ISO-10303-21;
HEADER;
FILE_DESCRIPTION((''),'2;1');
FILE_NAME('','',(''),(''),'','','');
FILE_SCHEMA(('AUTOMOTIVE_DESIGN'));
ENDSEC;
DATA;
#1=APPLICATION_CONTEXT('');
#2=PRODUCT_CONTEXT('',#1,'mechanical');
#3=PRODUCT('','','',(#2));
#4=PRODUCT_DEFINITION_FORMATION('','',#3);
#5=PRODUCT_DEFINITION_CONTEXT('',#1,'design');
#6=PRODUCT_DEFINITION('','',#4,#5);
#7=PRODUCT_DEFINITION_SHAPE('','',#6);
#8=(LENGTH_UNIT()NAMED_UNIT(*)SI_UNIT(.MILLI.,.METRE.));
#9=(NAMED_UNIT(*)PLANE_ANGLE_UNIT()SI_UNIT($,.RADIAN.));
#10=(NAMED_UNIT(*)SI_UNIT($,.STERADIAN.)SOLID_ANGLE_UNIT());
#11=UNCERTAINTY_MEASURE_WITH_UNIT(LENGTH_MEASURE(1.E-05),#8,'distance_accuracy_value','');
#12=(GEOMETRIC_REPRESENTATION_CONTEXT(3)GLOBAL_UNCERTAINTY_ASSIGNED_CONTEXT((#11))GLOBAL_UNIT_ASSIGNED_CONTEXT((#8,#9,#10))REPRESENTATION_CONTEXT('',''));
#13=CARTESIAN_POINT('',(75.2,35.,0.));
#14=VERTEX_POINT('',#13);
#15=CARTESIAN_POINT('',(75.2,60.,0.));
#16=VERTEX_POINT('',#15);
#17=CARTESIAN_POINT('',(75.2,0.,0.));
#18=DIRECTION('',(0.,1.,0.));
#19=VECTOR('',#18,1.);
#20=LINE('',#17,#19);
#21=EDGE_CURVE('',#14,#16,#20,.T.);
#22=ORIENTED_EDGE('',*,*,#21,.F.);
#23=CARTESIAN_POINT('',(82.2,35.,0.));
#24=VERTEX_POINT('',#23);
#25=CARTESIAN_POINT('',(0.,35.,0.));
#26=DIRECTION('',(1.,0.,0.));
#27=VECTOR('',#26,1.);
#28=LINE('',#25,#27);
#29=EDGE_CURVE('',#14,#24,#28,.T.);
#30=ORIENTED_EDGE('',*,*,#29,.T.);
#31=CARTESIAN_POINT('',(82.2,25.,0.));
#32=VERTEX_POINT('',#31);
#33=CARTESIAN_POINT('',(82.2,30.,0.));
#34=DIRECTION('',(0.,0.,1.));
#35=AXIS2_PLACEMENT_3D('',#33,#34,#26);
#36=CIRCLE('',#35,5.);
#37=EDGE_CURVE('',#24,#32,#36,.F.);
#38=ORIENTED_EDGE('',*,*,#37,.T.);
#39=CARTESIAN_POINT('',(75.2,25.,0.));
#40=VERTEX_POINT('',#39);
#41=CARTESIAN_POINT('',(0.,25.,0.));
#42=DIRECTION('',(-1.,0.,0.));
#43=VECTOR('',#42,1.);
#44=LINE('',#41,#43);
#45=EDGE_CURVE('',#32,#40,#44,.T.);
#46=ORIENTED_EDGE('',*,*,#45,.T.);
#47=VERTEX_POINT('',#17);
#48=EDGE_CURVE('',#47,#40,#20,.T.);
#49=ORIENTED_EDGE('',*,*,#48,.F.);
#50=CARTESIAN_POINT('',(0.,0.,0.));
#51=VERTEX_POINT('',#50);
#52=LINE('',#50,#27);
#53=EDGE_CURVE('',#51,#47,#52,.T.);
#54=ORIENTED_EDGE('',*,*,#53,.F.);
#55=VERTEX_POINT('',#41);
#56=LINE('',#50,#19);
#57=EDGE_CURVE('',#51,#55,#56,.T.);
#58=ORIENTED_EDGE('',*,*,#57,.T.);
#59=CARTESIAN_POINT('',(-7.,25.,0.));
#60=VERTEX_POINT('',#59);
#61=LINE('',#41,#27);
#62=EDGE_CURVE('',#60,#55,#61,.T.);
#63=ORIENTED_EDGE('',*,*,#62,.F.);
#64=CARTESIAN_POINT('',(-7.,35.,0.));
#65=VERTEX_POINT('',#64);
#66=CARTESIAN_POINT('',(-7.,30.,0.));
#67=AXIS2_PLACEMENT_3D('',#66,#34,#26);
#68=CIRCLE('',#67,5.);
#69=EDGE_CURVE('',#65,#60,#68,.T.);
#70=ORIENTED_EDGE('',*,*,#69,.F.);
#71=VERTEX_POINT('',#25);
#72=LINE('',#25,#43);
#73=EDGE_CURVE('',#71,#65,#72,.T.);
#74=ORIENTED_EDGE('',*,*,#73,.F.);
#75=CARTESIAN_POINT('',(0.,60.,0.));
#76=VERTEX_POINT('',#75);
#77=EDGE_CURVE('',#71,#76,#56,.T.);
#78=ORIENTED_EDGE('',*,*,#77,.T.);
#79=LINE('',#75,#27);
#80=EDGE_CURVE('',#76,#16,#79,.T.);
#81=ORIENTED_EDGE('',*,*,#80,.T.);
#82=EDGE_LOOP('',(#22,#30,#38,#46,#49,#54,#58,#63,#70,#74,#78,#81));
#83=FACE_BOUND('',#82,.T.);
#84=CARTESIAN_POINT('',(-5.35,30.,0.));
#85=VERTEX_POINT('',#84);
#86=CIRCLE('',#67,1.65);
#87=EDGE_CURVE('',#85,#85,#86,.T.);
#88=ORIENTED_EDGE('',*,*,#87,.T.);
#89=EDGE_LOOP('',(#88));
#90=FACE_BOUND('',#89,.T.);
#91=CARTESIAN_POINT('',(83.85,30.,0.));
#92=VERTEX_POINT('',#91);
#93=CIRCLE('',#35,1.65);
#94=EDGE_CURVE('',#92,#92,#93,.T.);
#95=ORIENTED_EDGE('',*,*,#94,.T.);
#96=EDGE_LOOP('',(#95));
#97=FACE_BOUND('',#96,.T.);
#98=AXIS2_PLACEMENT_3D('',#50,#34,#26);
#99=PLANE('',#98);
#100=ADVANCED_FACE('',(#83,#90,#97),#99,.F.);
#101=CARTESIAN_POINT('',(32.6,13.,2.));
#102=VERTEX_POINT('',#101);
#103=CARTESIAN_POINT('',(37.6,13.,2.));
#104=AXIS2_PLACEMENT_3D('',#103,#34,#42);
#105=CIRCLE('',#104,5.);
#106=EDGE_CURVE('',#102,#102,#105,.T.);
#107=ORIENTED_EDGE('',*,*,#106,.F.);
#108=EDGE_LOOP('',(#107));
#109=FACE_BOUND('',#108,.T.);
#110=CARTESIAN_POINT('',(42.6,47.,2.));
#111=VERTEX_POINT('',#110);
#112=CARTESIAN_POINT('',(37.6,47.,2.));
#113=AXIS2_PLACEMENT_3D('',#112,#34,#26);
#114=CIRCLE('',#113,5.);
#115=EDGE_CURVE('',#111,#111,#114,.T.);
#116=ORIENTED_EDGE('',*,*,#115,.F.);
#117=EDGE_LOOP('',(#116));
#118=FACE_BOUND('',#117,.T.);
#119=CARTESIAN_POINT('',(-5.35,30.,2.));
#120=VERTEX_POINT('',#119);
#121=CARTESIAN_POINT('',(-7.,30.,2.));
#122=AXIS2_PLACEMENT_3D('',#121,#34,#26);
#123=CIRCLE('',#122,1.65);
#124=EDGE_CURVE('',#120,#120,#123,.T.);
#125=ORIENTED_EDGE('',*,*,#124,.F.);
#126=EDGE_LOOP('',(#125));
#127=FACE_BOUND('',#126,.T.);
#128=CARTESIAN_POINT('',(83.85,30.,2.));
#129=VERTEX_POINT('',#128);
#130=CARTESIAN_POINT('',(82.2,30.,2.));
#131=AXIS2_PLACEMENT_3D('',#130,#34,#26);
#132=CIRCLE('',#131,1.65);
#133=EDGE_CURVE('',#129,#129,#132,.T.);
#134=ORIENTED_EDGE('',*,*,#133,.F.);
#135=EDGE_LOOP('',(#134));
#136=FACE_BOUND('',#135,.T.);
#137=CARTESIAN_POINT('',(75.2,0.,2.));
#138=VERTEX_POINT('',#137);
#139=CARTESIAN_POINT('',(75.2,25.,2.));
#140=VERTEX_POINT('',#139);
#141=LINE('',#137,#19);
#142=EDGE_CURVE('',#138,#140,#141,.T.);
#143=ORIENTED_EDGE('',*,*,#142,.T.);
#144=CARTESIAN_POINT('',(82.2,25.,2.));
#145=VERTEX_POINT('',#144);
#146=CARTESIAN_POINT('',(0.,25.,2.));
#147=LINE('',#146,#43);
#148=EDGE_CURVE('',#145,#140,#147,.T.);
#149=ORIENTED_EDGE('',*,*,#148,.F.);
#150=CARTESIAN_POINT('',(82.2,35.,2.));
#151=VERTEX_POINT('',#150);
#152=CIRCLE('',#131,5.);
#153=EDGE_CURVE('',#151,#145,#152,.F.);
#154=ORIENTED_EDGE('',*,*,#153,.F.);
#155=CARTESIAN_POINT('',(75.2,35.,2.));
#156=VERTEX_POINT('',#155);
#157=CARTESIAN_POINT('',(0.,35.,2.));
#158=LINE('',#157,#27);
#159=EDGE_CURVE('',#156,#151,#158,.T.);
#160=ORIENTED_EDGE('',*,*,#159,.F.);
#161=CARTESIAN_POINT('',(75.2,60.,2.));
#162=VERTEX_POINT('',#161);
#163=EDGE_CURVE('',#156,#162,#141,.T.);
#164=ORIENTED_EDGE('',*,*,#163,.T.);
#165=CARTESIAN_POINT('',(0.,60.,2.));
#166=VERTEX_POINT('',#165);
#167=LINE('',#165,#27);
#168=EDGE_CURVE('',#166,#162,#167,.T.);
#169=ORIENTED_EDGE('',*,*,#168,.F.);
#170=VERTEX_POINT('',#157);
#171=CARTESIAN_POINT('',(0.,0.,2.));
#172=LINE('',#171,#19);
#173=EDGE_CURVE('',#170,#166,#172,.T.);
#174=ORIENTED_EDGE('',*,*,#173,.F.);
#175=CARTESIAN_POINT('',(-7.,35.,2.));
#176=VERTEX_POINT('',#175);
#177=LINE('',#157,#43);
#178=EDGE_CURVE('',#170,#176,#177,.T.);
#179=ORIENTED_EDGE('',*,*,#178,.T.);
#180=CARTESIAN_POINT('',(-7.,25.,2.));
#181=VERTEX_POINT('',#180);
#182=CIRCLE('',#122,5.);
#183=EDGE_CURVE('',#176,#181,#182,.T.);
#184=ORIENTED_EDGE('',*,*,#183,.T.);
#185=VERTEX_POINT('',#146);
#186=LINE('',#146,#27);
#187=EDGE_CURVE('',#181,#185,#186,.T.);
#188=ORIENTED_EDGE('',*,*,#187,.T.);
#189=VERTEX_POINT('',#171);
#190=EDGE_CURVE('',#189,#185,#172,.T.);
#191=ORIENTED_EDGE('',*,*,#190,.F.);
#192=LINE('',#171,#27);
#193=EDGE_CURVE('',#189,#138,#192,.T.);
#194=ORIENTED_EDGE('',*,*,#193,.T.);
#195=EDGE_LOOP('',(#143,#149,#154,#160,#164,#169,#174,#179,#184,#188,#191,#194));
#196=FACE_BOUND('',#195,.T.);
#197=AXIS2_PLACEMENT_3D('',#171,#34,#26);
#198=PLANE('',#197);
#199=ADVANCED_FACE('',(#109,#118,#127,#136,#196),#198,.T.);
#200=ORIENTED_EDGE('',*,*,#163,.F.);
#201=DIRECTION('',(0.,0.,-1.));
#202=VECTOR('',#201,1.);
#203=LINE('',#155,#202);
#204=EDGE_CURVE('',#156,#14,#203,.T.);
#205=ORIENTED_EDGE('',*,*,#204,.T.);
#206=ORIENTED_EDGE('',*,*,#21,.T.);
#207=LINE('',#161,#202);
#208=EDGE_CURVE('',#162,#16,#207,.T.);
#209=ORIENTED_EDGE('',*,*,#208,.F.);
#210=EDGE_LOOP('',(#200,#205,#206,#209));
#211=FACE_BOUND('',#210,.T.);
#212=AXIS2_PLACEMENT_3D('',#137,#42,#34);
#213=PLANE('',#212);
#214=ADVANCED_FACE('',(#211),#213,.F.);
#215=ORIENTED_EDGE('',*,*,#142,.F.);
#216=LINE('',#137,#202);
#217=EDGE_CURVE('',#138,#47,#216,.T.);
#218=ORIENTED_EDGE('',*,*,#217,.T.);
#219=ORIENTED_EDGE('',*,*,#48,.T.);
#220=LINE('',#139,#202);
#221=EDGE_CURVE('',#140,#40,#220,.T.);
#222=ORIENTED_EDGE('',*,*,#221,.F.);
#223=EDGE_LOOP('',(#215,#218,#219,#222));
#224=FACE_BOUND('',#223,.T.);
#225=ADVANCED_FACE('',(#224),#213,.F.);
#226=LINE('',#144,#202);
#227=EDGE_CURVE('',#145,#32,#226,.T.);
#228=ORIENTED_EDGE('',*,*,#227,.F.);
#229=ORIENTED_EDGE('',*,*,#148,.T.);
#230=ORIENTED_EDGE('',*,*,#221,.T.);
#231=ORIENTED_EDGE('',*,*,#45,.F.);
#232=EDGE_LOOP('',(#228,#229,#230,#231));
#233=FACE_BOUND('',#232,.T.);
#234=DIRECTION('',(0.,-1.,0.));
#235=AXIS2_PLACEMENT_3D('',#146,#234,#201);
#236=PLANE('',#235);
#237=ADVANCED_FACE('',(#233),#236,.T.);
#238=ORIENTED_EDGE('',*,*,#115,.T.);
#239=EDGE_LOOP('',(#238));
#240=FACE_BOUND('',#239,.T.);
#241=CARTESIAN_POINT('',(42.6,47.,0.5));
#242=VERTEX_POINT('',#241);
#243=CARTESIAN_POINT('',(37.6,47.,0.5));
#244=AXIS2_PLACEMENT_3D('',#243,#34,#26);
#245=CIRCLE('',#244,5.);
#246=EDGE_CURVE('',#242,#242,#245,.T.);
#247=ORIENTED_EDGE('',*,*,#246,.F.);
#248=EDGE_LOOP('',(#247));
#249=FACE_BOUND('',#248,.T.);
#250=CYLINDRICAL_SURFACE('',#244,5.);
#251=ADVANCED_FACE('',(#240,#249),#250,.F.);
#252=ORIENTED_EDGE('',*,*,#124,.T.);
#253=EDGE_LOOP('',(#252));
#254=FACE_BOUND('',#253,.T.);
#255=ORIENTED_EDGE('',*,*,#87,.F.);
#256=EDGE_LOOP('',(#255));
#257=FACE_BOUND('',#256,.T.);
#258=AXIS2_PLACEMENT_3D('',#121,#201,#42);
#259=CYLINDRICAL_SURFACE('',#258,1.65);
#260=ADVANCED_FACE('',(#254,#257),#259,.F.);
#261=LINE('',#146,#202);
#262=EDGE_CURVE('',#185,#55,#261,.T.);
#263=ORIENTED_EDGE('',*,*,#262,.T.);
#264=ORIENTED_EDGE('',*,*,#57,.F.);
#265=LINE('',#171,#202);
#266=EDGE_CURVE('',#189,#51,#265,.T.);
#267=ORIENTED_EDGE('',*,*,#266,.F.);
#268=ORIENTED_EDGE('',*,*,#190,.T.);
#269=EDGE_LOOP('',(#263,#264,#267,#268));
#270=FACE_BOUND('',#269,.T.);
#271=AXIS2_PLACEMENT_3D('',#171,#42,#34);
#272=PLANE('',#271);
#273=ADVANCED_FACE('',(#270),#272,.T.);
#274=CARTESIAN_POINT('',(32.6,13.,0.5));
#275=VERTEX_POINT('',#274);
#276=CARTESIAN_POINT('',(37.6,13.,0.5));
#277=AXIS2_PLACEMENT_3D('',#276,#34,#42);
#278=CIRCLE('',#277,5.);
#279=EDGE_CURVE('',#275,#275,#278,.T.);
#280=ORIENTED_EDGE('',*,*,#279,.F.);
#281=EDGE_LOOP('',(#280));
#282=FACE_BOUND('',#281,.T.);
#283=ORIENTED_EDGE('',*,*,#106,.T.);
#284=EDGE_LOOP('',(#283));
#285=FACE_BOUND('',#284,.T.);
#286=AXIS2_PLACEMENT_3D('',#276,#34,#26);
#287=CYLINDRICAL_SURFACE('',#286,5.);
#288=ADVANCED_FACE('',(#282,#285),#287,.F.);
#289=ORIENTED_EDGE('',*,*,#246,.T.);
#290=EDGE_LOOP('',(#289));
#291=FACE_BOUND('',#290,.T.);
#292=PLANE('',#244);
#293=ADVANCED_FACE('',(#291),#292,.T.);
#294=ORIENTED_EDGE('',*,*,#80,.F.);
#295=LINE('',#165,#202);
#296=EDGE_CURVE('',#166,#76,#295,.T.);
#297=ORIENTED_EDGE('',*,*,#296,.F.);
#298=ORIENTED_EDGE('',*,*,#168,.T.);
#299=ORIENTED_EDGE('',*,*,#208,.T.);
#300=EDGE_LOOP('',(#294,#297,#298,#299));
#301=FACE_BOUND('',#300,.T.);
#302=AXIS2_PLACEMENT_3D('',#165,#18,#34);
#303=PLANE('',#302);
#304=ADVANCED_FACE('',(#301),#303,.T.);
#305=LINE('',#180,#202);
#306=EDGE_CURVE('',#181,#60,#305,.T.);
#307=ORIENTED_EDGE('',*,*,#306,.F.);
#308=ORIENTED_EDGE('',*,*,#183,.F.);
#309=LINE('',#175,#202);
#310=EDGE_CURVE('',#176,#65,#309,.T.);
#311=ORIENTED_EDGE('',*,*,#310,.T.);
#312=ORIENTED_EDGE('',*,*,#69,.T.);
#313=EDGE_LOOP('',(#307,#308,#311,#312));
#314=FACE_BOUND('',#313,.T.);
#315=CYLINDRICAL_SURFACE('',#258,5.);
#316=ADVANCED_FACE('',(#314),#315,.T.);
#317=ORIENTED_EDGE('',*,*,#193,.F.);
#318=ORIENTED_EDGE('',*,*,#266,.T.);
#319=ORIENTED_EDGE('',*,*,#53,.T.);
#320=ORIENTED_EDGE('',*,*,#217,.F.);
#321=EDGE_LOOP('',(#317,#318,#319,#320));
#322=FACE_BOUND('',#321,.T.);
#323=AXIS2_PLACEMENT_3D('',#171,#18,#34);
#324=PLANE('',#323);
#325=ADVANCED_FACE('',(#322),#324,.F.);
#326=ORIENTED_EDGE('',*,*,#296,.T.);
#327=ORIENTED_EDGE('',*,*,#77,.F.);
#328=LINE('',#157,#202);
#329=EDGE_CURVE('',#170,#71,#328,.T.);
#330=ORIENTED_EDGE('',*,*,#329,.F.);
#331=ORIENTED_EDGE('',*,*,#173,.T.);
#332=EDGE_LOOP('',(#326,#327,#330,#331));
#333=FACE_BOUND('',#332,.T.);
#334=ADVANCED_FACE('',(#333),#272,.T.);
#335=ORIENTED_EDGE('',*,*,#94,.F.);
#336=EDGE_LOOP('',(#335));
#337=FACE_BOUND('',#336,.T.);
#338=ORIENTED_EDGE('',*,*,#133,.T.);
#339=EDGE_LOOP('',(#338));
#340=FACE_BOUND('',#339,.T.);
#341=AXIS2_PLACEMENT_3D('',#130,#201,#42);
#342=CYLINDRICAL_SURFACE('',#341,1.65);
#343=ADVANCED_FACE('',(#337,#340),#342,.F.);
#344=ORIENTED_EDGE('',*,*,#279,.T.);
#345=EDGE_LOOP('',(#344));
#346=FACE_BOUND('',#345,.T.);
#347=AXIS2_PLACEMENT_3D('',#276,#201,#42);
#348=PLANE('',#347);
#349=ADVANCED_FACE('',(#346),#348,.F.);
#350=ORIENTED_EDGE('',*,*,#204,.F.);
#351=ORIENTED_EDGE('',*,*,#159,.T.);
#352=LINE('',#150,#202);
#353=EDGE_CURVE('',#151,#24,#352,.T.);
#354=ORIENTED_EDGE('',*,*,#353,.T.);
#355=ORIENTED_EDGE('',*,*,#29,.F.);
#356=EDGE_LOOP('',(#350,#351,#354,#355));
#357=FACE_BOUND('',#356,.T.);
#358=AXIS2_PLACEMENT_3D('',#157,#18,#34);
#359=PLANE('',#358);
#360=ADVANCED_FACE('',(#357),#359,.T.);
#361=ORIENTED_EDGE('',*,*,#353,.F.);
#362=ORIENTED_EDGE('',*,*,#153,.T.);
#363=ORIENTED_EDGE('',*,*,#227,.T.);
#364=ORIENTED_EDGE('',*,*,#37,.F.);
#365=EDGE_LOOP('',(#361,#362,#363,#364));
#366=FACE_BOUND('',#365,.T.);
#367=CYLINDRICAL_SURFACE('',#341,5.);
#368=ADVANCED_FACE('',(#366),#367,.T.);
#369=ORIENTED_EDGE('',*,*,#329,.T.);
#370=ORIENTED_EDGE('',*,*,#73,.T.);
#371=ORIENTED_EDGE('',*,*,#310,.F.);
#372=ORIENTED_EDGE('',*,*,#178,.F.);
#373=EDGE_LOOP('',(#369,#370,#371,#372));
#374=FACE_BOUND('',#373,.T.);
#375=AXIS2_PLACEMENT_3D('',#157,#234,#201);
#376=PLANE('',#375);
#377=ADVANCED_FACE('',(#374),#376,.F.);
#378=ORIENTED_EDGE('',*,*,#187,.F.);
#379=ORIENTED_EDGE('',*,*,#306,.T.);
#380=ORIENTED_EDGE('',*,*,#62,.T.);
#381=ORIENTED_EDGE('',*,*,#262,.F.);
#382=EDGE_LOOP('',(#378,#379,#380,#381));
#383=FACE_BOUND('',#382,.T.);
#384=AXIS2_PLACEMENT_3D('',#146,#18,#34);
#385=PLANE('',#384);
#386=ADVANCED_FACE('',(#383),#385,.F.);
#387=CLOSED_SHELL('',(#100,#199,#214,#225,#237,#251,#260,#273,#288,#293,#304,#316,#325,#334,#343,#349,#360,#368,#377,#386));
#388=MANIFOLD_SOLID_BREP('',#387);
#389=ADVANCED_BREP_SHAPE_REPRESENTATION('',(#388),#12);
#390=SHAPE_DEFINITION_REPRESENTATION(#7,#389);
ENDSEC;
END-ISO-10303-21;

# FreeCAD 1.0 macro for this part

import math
import FreeCAD as App
import Part
import Sketcher
from FreeCAD import Vector

doc = App.newDocument("Part")
body = doc.addObject("PartDesign::Body", "Body")

sketch1 = doc.addObject("Sketcher::SketchObject", "Sketch")
body.addObject(sketch1)
sketch1.AttachmentSupport = (doc.XY_Plane, [""])
sketch1.MapMode = "FlatFace"
sketch1.addGeometry([
    Part.LineSegment(Vector(0, 25, 0), Vector(0, 0, 0)),
    Part.LineSegment(Vector(0, 0, 0), Vector(75.2, 0, 0)),
    Part.LineSegment(Vector(75.2, 0, 0), Vector(75.2, 25, 0)),
    Part.LineSegment(Vector(75.2, 25, 0), Vector(82.2, 25, 0)),
    Part.ArcOfCircle(Part.Circle(Vector(82.2, 30, 0), Vector(0, 0, 1), 5), math.radians(-90), math.radians(90)),
    Part.LineSegment(Vector(82.2, 35, 0), Vector(75.2, 35, 0)),
    Part.LineSegment(Vector(75.2, 35, 0), Vector(75.2, 60, 0)),
    Part.LineSegment(Vector(75.2, 60, 0), Vector(0, 60, 0)),
    Part.LineSegment(Vector(0, 60, 0), Vector(0, 35, 0)),
    Part.LineSegment(Vector(0, 35, 0), Vector(-7, 35, 0)),
    Part.ArcOfCircle(Part.Circle(Vector(-7, 30, 0), Vector(0, 0, 1), 5), math.radians(90), math.radians(270)),
    Part.LineSegment(Vector(-7, 25, 0), Vector(0, 25, 0)),
    Part.Circle(Vector(-7, 30, 0), Vector(0, 0, 1), 1.65),
    Part.Circle(Vector(82.2, 30, 0), Vector(0, 0, 1), 1.65),
], False)
sketch1.addConstraint([
    Sketcher.Constraint("Coincident", 0, 2, 1, 1),
    Sketcher.Constraint("Coincident", 1, 2, 2, 1),
    Sketcher.Constraint("Coincident", 2, 2, 3, 1),
    Sketcher.Constraint("Tangent", 3, 2, 4, 1),
    Sketcher.Constraint("Tangent", 4, 2, 5, 1),
    Sketcher.Constraint("Coincident", 5, 2, 6, 1),
    Sketcher.Constraint("Coincident", 6, 2, 7, 1),
    Sketcher.Constraint("Coincident", 7, 2, 8, 1),
    Sketcher.Constraint("Coincident", 8, 2, 9, 1),
    Sketcher.Constraint("Tangent", 9, 2, 10, 1),
    Sketcher.Constraint("Tangent", 10, 2, 11, 1),
    Sketcher.Constraint("Coincident", 11, 2, 0, 1),
    Sketcher.Constraint("Vertical", 0),
    Sketcher.Constraint("Horizontal", 1),
    Sketcher.Constraint("Vertical", 2),
    Sketcher.Constraint("Horizontal", 3),
    Sketcher.Constraint("Horizontal", 5),
    Sketcher.Constraint("Vertical", 6),
    Sketcher.Constraint("Horizontal", 7),
    Sketcher.Constraint("Vertical", 8),
    Sketcher.Constraint("Horizontal", 9),
    Sketcher.Constraint("Horizontal", 11),
    Sketcher.Constraint("Coincident", 0, 2, -1, 1),
    Sketcher.Constraint("Coincident", 12, 3, 10, 3),
    Sketcher.Constraint("Coincident", 13, 3, 4, 3),
    Sketcher.Constraint("Equal", 4, 10),
    Sketcher.Constraint("Equal", 12, 13),
    Sketcher.Constraint("PointOnObject", 7, 2, -2),
    Sketcher.Constraint("Horizontal", 4, 3, 10, 3),
    Sketcher.Constraint("Vertical", 2, 2, 5, 2),
    Sketcher.Constraint("Equal", 5, 9),
    Sketcher.Constraint("Equal", 2, 6),
    Sketcher.Constraint("Radius", 4, 5.0),
    Sketcher.Constraint("Diameter", 12, 3.3),
    Sketcher.Constraint("DistanceX", 3, 1, 3, 2, 7.0),
    Sketcher.Constraint("DistanceY", 0, 2, 0, 1, 25.0),
    Sketcher.Constraint("DistanceX", 1, 1, 1, 2, 75.2),
])
pad1 = doc.addObject("PartDesign::Pad", "Pad")
body.addObject(pad1)
pad1.Profile = sketch1
pad1.Length = 2

sketch2 = doc.addObject("Sketcher::SketchObject", "Sketch001")
body.addObject(sketch2)
sketch2.AttachmentSupport = (doc.XY_Plane, [""])
sketch2.MapMode = "FlatFace"
sketch2.AttachmentOffset = App.Placement(Vector(0, 0, 2), App.Rotation())
sketch2.addGeometry([
    Part.Circle(Vector(37.6, 47, 0), Vector(0, 0, 1), 5),
    Part.Circle(Vector(37.6, 13, 0), Vector(0, 0, 1), 5),
], False)
sketch2.addConstraint([
    Sketcher.Constraint("Equal", 0, 1),
    Sketcher.Constraint("Vertical", 0, 3, 1, 3),
    Sketcher.Constraint("Diameter", 0, 10.0),
    Sketcher.Constraint("DistanceY", -1, 1, 0, 3, 47.0),
    Sketcher.Constraint("DistanceY", -1, 1, 1, 3, 13.0),
    Sketcher.Constraint("DistanceX", -1, 1, 0, 3, 37.6),
])
pocket1 = doc.addObject("PartDesign::Pocket", "Pocket")
body.addObject(pocket1)
pocket1.Profile = sketch2
pocket1.Length = 1.5

doc.recompute()
